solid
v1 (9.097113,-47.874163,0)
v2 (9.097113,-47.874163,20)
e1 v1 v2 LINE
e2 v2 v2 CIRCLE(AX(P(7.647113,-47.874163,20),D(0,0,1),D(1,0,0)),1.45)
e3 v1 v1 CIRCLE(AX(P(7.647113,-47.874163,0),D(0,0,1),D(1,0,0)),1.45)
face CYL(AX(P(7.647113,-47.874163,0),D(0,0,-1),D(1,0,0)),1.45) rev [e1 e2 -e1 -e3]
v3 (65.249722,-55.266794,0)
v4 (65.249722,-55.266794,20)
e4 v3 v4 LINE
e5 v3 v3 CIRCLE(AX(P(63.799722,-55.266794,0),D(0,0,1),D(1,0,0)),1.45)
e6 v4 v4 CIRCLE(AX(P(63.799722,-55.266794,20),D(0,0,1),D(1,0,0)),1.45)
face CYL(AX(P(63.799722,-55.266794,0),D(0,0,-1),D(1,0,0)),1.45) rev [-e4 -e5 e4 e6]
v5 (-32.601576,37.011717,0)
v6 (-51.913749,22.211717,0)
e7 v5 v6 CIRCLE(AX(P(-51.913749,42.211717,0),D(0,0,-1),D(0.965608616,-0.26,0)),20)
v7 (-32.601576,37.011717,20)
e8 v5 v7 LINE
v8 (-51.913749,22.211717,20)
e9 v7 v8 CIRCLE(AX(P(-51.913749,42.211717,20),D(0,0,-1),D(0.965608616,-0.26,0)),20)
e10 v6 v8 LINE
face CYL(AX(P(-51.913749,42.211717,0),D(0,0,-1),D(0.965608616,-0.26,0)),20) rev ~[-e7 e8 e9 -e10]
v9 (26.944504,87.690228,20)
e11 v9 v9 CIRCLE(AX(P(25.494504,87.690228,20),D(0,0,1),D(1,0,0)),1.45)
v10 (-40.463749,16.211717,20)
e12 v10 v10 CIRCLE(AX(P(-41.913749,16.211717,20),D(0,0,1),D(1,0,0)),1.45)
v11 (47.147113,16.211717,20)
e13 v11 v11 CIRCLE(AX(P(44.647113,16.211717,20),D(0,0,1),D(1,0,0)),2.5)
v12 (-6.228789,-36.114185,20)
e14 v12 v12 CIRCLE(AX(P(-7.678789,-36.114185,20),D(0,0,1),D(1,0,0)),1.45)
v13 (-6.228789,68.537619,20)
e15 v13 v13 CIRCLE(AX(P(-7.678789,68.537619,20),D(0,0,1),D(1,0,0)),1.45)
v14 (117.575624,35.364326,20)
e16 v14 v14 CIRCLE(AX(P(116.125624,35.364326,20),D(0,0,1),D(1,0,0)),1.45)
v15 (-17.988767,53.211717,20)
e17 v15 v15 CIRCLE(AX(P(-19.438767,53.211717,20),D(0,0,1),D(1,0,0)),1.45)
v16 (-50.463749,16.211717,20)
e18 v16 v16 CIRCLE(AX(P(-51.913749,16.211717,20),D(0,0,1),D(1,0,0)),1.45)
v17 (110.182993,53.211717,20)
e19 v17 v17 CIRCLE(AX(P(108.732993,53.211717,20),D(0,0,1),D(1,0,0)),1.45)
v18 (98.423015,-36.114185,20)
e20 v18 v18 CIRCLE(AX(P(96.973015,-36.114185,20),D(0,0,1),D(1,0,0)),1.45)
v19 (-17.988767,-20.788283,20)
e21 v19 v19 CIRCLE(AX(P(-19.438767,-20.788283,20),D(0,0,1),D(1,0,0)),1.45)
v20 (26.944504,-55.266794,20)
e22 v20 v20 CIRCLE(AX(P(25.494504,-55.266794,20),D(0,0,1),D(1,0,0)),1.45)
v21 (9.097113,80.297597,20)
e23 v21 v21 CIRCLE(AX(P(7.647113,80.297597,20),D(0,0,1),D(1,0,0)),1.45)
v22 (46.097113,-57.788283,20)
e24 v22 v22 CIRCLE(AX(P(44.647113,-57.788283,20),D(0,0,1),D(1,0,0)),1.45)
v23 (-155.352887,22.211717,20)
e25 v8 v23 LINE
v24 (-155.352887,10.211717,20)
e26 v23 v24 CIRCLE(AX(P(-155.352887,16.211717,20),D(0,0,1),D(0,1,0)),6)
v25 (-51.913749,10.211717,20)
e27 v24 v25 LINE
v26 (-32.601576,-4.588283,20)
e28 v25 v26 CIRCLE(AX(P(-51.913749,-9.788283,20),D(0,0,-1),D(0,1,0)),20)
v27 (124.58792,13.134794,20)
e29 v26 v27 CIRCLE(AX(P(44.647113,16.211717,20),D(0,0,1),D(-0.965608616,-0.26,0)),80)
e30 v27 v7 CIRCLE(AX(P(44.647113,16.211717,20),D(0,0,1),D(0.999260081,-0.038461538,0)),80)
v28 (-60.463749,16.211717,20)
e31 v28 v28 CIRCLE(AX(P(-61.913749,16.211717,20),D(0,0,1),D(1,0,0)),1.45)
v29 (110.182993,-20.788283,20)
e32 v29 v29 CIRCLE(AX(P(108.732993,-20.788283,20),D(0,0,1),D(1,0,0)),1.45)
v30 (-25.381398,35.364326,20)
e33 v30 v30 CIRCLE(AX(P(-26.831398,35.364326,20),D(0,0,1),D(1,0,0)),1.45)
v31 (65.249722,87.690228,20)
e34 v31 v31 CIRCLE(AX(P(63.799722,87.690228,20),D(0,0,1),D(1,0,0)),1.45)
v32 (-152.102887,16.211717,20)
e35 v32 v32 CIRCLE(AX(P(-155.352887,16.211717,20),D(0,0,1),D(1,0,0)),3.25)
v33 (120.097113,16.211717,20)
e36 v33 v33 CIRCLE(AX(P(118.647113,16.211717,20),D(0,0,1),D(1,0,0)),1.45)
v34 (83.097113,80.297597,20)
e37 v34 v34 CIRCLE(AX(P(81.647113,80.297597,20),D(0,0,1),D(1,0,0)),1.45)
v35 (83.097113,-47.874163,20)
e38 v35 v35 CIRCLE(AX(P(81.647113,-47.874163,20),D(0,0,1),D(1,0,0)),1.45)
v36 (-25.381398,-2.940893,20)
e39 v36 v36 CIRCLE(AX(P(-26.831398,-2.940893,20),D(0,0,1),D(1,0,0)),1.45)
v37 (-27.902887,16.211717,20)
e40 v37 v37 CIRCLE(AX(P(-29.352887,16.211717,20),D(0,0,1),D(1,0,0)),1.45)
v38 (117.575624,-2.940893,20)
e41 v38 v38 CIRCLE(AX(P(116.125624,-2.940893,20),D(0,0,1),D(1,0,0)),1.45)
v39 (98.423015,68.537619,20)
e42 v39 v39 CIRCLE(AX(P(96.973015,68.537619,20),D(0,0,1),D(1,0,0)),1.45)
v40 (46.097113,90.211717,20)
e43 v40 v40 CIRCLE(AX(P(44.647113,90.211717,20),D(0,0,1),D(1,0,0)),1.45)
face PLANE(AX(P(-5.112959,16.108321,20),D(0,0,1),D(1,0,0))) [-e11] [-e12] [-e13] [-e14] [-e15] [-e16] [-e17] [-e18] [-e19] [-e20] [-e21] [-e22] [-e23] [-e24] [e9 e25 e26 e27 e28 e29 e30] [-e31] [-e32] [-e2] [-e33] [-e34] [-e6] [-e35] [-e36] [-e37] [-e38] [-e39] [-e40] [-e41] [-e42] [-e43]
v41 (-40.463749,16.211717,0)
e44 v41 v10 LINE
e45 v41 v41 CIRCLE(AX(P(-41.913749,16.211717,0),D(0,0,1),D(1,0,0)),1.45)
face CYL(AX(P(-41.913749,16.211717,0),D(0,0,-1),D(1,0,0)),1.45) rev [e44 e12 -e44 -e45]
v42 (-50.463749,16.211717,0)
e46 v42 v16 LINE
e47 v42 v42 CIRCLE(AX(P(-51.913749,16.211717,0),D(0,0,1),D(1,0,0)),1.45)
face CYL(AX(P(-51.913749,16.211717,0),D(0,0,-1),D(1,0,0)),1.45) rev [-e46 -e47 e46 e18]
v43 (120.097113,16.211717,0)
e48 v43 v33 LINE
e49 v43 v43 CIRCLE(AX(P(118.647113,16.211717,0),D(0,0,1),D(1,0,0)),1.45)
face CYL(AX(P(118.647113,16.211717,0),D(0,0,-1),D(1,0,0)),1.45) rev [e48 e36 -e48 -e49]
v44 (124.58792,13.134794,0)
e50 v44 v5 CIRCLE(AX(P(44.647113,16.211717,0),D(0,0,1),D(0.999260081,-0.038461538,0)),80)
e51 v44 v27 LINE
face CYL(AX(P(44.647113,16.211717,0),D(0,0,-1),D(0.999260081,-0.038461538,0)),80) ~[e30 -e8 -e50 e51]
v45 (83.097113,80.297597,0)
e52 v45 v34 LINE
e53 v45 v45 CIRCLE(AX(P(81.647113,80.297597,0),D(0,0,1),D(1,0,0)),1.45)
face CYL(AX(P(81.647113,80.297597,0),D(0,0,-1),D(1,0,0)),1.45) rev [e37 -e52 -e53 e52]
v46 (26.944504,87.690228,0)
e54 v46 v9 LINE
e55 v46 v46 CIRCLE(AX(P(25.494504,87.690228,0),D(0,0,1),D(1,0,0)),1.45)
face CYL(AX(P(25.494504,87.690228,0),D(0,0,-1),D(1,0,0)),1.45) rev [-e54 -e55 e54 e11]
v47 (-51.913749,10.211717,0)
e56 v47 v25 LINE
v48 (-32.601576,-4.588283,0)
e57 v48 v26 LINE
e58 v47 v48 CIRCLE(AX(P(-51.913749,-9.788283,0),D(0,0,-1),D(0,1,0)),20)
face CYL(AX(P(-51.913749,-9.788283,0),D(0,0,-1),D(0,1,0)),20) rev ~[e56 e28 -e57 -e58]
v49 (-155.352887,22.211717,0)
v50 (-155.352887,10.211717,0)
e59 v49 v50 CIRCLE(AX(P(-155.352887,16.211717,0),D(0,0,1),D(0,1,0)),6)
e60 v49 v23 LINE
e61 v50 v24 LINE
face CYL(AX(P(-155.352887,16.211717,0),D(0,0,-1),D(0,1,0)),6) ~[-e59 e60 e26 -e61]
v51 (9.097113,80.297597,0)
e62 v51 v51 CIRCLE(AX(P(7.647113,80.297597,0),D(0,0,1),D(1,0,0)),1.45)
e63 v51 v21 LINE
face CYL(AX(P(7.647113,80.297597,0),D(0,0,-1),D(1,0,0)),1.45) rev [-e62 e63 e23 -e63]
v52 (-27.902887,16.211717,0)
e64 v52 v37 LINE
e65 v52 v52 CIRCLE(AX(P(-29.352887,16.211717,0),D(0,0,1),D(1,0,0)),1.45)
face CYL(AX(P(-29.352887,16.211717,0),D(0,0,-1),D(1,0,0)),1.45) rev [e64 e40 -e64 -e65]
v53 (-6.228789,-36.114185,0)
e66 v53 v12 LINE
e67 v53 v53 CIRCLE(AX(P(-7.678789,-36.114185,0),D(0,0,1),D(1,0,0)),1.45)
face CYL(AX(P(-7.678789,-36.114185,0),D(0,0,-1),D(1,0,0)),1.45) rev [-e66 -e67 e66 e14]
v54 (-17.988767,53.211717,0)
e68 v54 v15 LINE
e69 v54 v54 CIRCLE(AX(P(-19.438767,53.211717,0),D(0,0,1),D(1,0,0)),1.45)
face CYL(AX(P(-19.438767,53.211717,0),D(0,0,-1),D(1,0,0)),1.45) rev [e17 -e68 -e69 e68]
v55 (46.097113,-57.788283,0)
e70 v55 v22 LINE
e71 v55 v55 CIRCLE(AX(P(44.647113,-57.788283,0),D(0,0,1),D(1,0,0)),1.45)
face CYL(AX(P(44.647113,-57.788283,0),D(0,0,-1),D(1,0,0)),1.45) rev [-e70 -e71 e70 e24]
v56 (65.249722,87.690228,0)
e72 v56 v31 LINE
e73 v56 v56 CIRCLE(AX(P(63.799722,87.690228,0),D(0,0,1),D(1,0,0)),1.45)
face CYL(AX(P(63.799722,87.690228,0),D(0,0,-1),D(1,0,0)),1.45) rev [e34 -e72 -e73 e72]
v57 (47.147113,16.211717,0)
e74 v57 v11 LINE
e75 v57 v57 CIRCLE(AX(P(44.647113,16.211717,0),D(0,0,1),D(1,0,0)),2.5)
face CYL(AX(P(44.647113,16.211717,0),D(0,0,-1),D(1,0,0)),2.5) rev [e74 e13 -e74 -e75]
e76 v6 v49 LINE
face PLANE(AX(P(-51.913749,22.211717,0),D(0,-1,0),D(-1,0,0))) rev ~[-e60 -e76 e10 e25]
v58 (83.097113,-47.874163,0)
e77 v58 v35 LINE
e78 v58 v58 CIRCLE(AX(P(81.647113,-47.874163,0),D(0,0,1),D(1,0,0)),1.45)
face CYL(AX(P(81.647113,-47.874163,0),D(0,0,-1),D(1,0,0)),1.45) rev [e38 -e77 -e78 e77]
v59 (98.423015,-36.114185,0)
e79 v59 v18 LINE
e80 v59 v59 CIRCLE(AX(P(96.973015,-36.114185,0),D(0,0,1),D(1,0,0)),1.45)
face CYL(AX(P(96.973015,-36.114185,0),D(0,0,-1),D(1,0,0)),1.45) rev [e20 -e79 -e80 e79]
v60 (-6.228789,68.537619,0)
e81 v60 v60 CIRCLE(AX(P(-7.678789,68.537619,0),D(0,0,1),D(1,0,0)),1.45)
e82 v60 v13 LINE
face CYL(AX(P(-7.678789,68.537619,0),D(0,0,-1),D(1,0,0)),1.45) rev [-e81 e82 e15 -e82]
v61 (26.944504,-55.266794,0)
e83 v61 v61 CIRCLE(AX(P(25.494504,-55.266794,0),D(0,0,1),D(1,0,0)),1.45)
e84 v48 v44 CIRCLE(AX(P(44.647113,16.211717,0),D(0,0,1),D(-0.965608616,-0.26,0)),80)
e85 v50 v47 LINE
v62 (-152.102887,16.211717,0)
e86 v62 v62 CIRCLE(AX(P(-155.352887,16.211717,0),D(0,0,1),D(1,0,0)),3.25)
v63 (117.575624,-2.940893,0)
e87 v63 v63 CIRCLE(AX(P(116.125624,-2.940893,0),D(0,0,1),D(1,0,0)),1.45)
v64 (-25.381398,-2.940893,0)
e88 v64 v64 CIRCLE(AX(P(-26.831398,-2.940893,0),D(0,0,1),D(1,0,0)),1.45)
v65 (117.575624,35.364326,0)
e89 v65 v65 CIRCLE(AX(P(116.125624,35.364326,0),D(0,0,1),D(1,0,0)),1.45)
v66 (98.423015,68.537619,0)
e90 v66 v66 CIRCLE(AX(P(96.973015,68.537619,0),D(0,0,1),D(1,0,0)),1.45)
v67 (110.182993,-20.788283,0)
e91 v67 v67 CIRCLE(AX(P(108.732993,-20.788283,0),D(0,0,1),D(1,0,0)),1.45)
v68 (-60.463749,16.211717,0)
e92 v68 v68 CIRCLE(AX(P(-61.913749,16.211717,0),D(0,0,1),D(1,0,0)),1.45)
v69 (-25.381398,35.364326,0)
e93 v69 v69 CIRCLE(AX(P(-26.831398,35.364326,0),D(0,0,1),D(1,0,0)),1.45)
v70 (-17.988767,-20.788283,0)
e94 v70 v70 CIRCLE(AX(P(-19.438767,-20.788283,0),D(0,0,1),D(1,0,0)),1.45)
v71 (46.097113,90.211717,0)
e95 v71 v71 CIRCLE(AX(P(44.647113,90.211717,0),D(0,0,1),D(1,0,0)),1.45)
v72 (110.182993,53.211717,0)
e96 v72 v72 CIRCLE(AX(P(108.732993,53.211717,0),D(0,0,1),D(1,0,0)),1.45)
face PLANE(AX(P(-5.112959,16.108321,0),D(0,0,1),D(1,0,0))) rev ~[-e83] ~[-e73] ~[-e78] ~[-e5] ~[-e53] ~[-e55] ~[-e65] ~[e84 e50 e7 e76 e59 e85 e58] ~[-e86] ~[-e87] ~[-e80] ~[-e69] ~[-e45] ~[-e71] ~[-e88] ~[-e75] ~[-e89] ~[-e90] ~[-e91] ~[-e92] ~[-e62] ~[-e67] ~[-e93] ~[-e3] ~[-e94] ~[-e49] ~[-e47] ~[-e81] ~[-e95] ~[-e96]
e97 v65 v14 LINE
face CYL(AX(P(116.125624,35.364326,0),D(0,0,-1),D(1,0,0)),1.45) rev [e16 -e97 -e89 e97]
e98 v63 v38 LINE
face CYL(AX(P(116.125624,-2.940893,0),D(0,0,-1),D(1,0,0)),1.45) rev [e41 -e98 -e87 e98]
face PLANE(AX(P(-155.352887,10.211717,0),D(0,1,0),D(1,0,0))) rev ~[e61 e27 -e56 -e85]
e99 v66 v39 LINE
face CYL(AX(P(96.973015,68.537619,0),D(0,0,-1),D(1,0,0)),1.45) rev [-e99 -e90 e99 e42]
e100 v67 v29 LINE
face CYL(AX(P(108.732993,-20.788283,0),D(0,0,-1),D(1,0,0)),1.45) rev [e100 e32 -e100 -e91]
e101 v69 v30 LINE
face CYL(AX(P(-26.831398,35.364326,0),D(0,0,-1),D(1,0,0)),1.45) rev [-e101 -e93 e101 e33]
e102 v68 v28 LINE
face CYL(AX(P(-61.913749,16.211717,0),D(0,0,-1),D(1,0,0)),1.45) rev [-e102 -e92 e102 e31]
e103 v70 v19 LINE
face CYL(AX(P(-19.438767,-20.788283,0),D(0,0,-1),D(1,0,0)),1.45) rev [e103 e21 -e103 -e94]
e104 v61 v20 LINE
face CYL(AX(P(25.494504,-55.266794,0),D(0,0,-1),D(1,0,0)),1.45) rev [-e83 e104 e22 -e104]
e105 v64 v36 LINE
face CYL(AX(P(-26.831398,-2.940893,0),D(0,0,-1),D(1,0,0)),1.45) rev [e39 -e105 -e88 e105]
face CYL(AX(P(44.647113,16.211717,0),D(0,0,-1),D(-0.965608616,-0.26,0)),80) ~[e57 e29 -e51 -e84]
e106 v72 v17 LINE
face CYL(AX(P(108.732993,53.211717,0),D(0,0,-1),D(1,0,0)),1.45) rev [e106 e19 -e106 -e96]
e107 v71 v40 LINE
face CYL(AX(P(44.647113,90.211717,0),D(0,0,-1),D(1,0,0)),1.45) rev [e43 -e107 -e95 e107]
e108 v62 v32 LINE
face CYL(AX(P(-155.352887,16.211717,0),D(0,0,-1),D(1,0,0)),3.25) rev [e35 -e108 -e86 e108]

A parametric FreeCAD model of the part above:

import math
import FreeCAD as App
import Part
import Sketcher
from FreeCAD import Vector

doc = App.newDocument("Part")
body = doc.addObject("PartDesign::Body", "Body")

sketch1 = body.newObject("Sketcher::SketchObject", "Sketch")
sketch1.AttachmentSupport = (doc.getObject("XY_Plane"), [""])
sketch1.MapMode = "FlatFace"
sketch1.addGeometry([
    Part.LineSegment(Vector(-155.352887, 10.211717, 0), Vector(-51.913749, 10.211717, 0)),
    Part.ArcOfCircle(Part.Circle(Vector(-51.913749, -9.788283, 0), Vector(0, 0, 1), 20), math.radians(15.070062), math.radians(90)),
    Part.ArcOfCircle(Part.Circle(Vector(44.647113, 16.211717, 0), Vector(0, 0, 1), 80), math.radians(-164.929938), math.radians(-2.204228)),
    Part.ArcOfCircle(Part.Circle(Vector(44.647113, 16.211717, 0), Vector(0, 0, 1), 80), math.radians(-2.204228), math.radians(164.929938)),
    Part.ArcOfCircle(Part.Circle(Vector(-51.913749, 42.211717, 0), Vector(0, 0, 1), 20), math.radians(-90), math.radians(-15.070062)),
    Part.LineSegment(Vector(-51.913749, 22.211717, 0), Vector(-155.352887, 22.211717, 0)),
    Part.ArcOfCircle(Part.Circle(Vector(-155.352887, 16.211717, 0), Vector(0, 0, 1), 6), math.radians(90), math.radians(270)),
    Part.Circle(Vector(-155.352887, 16.211717, 0), Vector(0, 0, 1), 3.25),
    Part.Circle(Vector(-19.438767, -20.788283, 0), Vector(0, 0, 1), 1.45),
    Part.Circle(Vector(-26.831398, -2.940893, 0), Vector(0, 0, 1), 1.45),
    Part.Circle(Vector(-61.913749, 16.211717, 0), Vector(0, 0, 1), 1.45),
    Part.Circle(Vector(-51.913749, 16.211717, 0), Vector(0, 0, 1), 1.45),
    Part.Circle(Vector(-41.913749, 16.211717, 0), Vector(0, 0, 1), 1.45),
    Part.Circle(Vector(-29.352887, 16.211717, 0), Vector(0, 0, 1), 1.45),
    Part.Circle(Vector(7.647113, -47.874163, 0), Vector(0, 0, 1), 1.45),
    Part.Circle(Vector(25.494504, -55.266794, 0), Vector(0, 0, 1), 1.45),
    Part.Circle(Vector(44.647113, -57.788283, 0), Vector(0, 0, 1), 1.45),
    Part.Circle(Vector(-7.678789, -36.114185, 0), Vector(0, 0, 1), 1.45),
    Part.Circle(Vector(63.799722, -55.266794, 0), Vector(0, 0, 1), 1.45),
    Part.Circle(Vector(81.647113, -47.874163, 0), Vector(0, 0, 1), 1.45),
    Part.Circle(Vector(96.973015, -36.114185, 0), Vector(0, 0, 1), 1.45),
    Part.Circle(Vector(44.647113, 16.211717, 0), Vector(0, 0, 1), 2.5),
    Part.Circle(Vector(108.732993, -20.788283, 0), Vector(0, 0, 1), 1.45),
    Part.Circle(Vector(116.125624, -2.940893, 0), Vector(0, 0, 1), 1.45),
    Part.Circle(Vector(118.647113, 16.211717, 0), Vector(0, 0, 1), 1.45),
    Part.Circle(Vector(-26.831398, 35.364326, 0), Vector(0, 0, 1), 1.45),
    Part.Circle(Vector(-19.438767, 53.211717, 0), Vector(0, 0, 1), 1.45),
    Part.Circle(Vector(116.125624, 35.364326, 0), Vector(0, 0, 1), 1.45),
    Part.Circle(Vector(108.732993, 53.211717, 0), Vector(0, 0, 1), 1.45),
    Part.Circle(Vector(-7.678789, 68.537619, 0), Vector(0, 0, 1), 1.45),
    Part.Circle(Vector(7.647113, 80.297597, 0), Vector(0, 0, 1), 1.45),
    Part.Circle(Vector(25.494504, 87.690228, 0), Vector(0, 0, 1), 1.45),
    Part.Circle(Vector(44.647113, 90.211717, 0), Vector(0, 0, 1), 1.45),
    Part.Circle(Vector(96.973015, 68.537619, 0), Vector(0, 0, 1), 1.45),
    Part.Circle(Vector(81.647113, 80.297597, 0), Vector(0, 0, 1), 1.45),
    Part.Circle(Vector(63.799722, 87.690228, 0), Vector(0, 0, 1), 1.45),
], False)
sketch1.addConstraint([
    Sketcher.Constraint("Tangent", 0, 2, 1, 2),
    Sketcher.Constraint("Tangent", 1, 1, 2, 1),
    Sketcher.Constraint("Tangent", 2, 2, 3, 1),
    Sketcher.Constraint("Tangent", 3, 2, 4, 2),
    Sketcher.Constraint("Tangent", 4, 1, 5, 1),
    Sketcher.Constraint("Tangent", 5, 2, 6, 1),
    Sketcher.Constraint("Tangent", 6, 2, 0, 1),
    Sketcher.Constraint("Horizontal", 0),
    Sketcher.Constraint("Horizontal", 5),
    Sketcher.Constraint("Coincident", 7, 3, 6, 3),
    Sketcher.Constraint("Coincident", 21, 3, 2, 3),
    Sketcher.Constraint("Equal", 2, 3),
    Sketcher.Constraint("Equal", 1, 4),
    Sketcher.Constraint("Equal", 8, 9),
    Sketcher.Constraint("Equal", 9, 10),
    Sketcher.Constraint("Equal", 10, 11),
    Sketcher.Constraint("Equal", 11, 12),
    Sketcher.Constraint("Equal", 12, 13),
    Sketcher.Constraint("Equal", 13, 14),
    Sketcher.Constraint("Equal", 14, 15),
    Sketcher.Constraint("Equal", 15, 16),
    Sketcher.Constraint("Equal", 16, 17),
    Sketcher.Constraint("Equal", 17, 18),
    Sketcher.Constraint("Equal", 18, 19),
    Sketcher.Constraint("Equal", 19, 20),
    Sketcher.Constraint("Equal", 20, 22),
    Sketcher.Constraint("Equal", 22, 23),
    Sketcher.Constraint("Equal", 23, 24),
    Sketcher.Constraint("Equal", 24, 25),
    Sketcher.Constraint("Equal", 25, 26),
    Sketcher.Constraint("Equal", 26, 27),
    Sketcher.Constraint("Equal", 27, 28),
    Sketcher.Constraint("Equal", 28, 29),
    Sketcher.Constraint("Equal", 29, 30),
    Sketcher.Constraint("Equal", 30, 31),
    Sketcher.Constraint("Equal", 31, 32),
    Sketcher.Constraint("Equal", 32, 33),
    Sketcher.Constraint("Equal", 33, 34),
    Sketcher.Constraint("Equal", 34, 35),
    Sketcher.Constraint("Horizontal", 3, 3, 6, 3),
    Sketcher.Constraint("Horizontal", 7, 3, 10, 3),
    Sketcher.Constraint("Horizontal", 10, 3, 11, 3),
    Sketcher.Constraint("Horizontal", 11, 3, 12, 3),
    Sketcher.Constraint("Horizontal", 12, 3, 13, 3),
    Sketcher.Constraint("Horizontal", 15, 3, 18, 3),
    Sketcher.Constraint("Horizontal", 14, 3, 19, 3),
    Sketcher.Constraint("Horizontal", 17, 3, 20, 3),
    Sketcher.Constraint("Horizontal", 8, 3, 22, 3),
    Sketcher.Constraint("Horizontal", 9, 3, 23, 3),
    Sketcher.Constraint("Horizontal", 21, 3, 24, 3),
    Sketcher.Constraint("Horizontal", 25, 3, 27, 3),
    Sketcher.Constraint("Horizontal", 26, 3, 28, 3),
    Sketcher.Constraint("Horizontal", 29, 3, 33, 3),
    Sketcher.Constraint("Horizontal", 30, 3, 34, 3),
    Sketcher.Constraint("Horizontal", 31, 3, 35, 3),
    Sketcher.Constraint("Vertical", 4, 3, 11, 3),
    Sketcher.Constraint("Vertical", 3, 3, 16, 3),
    Sketcher.Constraint("Vertical", 9, 3, 25, 3),
    Sketcher.Constraint("Vertical", 8, 3, 26, 3),
    Sketcher.Constraint("Vertical", 23, 3, 27, 3),
    Sketcher.Constraint("Vertical", 22, 3, 28, 3),
    Sketcher.Constraint("Vertical", 17, 3, 29, 3),
    Sketcher.Constraint("Vertical", 14, 3, 30, 3),
    Sketcher.Constraint("Vertical", 15, 3, 31, 3),
    Sketcher.Constraint("Vertical", 21, 3, 32, 3),
    Sketcher.Constraint("Vertical", 20, 3, 33, 3),
    Sketcher.Constraint("Vertical", 19, 3, 34, 3),
    Sketcher.Constraint("Vertical", 18, 3, 35, 3),
    Sketcher.Constraint("Diameter", 21, 5.0),
    Sketcher.Constraint("Radius", 1, 20.0),
    Sketcher.Constraint("Radius", 2, 80.0),
    Sketcher.Constraint("Radius", 6, 6.0),
    Sketcher.Constraint("Diameter", 7, 6.5),
    Sketcher.Constraint("Diameter", 8, 2.9),
    Sketcher.Constraint("DistanceX", 6, 3, 2, 3, 200.0),
    Sketcher.Constraint("DistanceY", 8, 3, 1, 3, 11.0),
    Sketcher.Constraint("DistanceX", 10, 3, 4, 3, 10.0),
    Sketcher.Constraint("DistanceX", 11, 3, 12, 3, 10.0),
    Sketcher.Constraint("DistanceX", 14, 3, 2, 3, 37.0),
    Sketcher.Constraint("DistanceY", 16, 3, 2, 3, 74.0),
    Sketcher.Constraint("DistanceX", 16, 3, 19, 3, 37.0),
    Sketcher.Constraint("DistanceX", 3, 3, 24, 3, 74.0),
    Sketcher.Constraint("DistanceY", 4, 3, 26, 3, 11.0),
    Sketcher.Constraint("DistanceX", 13, 3, 30, 3, 37.0),
    Sketcher.Constraint("DistanceY", 26, 3, 32, 3, 37.0),
    Sketcher.Constraint("DistanceX", 9, 3, -1, 1, 26.831398),
    Sketcher.Constraint("DistanceX", 9, 3, 15, 3, 52.325902),
    Sketcher.Constraint("DistanceY", 15, 3, 9, 3, 52.325902),
    Sketcher.Constraint("DistanceY", 17, 3, 8, 3, 15.325902),
    Sketcher.Constraint("DistanceX", 17, 3, 14, 3, 15.325902),
    Sketcher.Constraint("DistanceX", 19, 3, 20, 3, 15.325902),
    Sketcher.Constraint("DistanceY", 26, 3, 29, 3, 15.325902),
    Sketcher.Constraint("DistanceY", 25, 3, 31, 3, 52.325902),
    Sketcher.Constraint("DistanceX", 1, 3, -1, 1, 51.913749),
    Sketcher.Constraint("DistanceY", -1, 1, 29, 3, 68.537619),
    Sketcher.Constraint("DistanceX", -1, 1, 2, 2, 124.58792),
    Sketcher.Constraint("DistanceX", 1, 3, 8, 3, 32.474982),
    Sketcher.Constraint("DistanceY", 8, 3, 9, 3, 17.847391),
    Sketcher.Constraint("DistanceY", 14, 3, 8, 3, 27.08588),
    Sketcher.Constraint("DistanceX", 16, 3, 18, 3, 19.152609),
    Sketcher.Constraint("DistanceX", 20, 3, 22, 3, 11.759978),
    Sketcher.Constraint("DistanceX", 22, 3, 23, 3, 7.392631),
    Sketcher.Constraint("DistanceY", 13, 3, 25, 3, 19.152609),
    Sketcher.Constraint("DistanceY", 29, 3, 30, 3, 11.759978),
])
pad1 = body.newObject("PartDesign::Pad", "Pad")
pad1.Profile = sketch1
pad1.Length = 20

doc.recompute()
